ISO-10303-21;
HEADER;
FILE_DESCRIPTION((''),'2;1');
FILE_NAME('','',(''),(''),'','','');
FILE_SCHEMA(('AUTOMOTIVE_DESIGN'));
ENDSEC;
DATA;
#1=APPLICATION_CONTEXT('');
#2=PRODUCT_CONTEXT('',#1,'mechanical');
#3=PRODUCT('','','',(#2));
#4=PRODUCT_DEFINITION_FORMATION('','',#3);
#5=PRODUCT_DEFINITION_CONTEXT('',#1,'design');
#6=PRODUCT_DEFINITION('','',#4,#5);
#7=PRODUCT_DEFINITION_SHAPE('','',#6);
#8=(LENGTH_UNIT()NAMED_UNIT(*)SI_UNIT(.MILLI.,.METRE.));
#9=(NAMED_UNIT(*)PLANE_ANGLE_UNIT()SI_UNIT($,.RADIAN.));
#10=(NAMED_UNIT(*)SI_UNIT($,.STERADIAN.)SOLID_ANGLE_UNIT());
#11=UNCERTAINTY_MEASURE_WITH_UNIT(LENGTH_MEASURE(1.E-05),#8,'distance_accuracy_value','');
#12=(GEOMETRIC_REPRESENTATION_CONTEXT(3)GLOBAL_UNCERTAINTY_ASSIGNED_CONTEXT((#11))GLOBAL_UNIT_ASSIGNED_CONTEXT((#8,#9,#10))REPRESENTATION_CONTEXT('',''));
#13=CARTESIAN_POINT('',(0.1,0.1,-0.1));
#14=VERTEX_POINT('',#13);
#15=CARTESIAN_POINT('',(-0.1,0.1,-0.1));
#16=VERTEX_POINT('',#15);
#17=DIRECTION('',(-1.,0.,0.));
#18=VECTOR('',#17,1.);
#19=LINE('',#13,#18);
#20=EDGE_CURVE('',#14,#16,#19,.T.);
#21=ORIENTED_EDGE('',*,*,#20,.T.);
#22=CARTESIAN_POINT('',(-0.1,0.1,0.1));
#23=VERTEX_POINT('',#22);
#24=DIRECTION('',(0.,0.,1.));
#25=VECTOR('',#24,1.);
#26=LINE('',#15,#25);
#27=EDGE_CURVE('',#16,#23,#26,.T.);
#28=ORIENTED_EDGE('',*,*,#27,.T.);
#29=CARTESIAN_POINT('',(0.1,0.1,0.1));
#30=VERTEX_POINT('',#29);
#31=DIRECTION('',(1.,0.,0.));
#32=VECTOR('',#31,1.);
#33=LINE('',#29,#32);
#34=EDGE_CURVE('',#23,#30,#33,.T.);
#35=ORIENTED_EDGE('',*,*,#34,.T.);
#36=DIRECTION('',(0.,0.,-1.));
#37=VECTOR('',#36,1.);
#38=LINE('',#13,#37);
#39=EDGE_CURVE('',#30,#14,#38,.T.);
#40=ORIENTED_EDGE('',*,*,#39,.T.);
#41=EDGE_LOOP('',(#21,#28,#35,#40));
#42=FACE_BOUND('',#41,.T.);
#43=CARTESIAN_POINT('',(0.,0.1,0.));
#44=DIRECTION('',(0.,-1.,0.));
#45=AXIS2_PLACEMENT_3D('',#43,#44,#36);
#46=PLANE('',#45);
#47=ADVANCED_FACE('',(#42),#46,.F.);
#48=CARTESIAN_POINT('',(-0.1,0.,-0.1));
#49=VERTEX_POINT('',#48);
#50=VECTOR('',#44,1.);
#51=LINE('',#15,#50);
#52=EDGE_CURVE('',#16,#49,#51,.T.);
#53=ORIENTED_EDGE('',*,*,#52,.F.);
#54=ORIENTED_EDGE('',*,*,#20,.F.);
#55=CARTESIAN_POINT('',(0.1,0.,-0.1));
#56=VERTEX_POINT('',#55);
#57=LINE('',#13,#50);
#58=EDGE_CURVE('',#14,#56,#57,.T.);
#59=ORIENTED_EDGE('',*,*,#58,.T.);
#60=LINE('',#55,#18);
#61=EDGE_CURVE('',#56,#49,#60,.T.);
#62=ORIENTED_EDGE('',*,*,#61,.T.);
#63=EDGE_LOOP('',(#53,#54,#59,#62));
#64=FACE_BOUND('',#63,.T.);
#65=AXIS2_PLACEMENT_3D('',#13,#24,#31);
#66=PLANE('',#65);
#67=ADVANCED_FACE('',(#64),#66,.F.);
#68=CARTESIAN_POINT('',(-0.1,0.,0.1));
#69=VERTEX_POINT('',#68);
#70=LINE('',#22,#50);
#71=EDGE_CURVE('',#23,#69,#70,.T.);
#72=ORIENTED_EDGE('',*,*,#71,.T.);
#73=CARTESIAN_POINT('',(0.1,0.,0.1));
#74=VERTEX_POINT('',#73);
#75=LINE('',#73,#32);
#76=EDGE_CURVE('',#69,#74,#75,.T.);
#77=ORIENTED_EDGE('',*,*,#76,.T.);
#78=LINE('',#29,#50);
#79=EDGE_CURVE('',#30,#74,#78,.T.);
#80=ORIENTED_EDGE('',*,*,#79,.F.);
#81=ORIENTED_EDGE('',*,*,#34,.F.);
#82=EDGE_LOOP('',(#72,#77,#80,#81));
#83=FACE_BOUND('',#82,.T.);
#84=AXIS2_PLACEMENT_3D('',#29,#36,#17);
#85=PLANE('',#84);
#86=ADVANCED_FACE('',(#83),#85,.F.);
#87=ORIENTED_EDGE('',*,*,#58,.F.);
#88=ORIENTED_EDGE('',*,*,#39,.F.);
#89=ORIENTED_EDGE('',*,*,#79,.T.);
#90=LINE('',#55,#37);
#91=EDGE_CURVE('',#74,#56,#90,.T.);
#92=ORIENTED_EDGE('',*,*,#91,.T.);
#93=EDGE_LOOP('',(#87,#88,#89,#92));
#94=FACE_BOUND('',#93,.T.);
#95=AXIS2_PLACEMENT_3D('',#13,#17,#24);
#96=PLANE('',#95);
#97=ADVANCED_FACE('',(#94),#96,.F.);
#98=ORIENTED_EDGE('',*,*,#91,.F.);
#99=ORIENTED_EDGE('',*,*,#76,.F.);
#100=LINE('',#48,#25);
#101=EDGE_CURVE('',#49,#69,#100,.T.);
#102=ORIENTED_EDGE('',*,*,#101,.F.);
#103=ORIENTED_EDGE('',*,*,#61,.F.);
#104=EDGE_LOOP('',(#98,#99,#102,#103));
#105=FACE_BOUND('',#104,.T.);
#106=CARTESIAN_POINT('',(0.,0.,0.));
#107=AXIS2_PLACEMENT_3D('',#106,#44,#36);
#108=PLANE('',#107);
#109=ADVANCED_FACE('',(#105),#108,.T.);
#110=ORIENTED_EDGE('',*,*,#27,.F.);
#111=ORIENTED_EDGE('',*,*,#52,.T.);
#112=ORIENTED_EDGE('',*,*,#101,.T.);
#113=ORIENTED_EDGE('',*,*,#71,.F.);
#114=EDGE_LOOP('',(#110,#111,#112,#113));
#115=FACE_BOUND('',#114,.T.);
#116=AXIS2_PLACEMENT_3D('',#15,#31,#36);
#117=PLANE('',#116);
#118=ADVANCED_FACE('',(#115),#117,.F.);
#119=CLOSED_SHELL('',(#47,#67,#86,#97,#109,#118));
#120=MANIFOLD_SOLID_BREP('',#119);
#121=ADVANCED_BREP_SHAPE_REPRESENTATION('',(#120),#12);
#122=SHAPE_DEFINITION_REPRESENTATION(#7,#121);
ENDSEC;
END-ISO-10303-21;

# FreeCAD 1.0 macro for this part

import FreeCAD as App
import Part
import Sketcher
from FreeCAD import Vector
Q = App.Units.Quantity


def add_polygon(sketch, points):
    """Adds a closed chain of lines whose ends are joined by coincident constraints."""
    first, n = sketch.GeometryCount, len(points)
    for a, b in zip(points, points[1:] + points[:1]):
        sketch.addGeometry(Part.LineSegment(App.Vector(*a, 0), App.Vector(*b, 0)), False)
    for i in range(n):
        sketch.addConstraint(Sketcher.Constraint("Coincident", first + i, 2, first + (i + 1) % n, 1))

doc = App.newDocument("Part")
body = doc.addObject("PartDesign::Body", "Body")

sketch1 = doc.addObject("Sketcher::SketchObject", "Sketch")
body.addObject(sketch1)
sketch1.AttachmentSupport = (doc.XZ_Plane, [""])
sketch1.MapMode = "FlatFace"
add_polygon(sketch1, [(-0.1, -0.1), (-0.1, 0.1), (0.1, 0.1), (0.1, -0.1)])
sketch1.addConstraint([
    Sketcher.Constraint("Vertical", 0),
    Sketcher.Constraint("Horizontal", 1),
    Sketcher.Constraint("Vertical", 2),
    Sketcher.Constraint("Horizontal", 3),
    Sketcher.Constraint("Symmetric", 0, 2, 2, 2, -1, 1),
    Sketcher.Constraint("Equal", 3, 0),
    Sketcher.Constraint("DistanceX", 1, 1, 1, 2, Q("0.2 mm")),
])
pad1 = doc.addObject("PartDesign::Pad", "Pad")
body.addObject(pad1)
pad1.Profile = sketch1
pad1.Length = 0.1
pad1.Reversed = True

doc.recompute()
